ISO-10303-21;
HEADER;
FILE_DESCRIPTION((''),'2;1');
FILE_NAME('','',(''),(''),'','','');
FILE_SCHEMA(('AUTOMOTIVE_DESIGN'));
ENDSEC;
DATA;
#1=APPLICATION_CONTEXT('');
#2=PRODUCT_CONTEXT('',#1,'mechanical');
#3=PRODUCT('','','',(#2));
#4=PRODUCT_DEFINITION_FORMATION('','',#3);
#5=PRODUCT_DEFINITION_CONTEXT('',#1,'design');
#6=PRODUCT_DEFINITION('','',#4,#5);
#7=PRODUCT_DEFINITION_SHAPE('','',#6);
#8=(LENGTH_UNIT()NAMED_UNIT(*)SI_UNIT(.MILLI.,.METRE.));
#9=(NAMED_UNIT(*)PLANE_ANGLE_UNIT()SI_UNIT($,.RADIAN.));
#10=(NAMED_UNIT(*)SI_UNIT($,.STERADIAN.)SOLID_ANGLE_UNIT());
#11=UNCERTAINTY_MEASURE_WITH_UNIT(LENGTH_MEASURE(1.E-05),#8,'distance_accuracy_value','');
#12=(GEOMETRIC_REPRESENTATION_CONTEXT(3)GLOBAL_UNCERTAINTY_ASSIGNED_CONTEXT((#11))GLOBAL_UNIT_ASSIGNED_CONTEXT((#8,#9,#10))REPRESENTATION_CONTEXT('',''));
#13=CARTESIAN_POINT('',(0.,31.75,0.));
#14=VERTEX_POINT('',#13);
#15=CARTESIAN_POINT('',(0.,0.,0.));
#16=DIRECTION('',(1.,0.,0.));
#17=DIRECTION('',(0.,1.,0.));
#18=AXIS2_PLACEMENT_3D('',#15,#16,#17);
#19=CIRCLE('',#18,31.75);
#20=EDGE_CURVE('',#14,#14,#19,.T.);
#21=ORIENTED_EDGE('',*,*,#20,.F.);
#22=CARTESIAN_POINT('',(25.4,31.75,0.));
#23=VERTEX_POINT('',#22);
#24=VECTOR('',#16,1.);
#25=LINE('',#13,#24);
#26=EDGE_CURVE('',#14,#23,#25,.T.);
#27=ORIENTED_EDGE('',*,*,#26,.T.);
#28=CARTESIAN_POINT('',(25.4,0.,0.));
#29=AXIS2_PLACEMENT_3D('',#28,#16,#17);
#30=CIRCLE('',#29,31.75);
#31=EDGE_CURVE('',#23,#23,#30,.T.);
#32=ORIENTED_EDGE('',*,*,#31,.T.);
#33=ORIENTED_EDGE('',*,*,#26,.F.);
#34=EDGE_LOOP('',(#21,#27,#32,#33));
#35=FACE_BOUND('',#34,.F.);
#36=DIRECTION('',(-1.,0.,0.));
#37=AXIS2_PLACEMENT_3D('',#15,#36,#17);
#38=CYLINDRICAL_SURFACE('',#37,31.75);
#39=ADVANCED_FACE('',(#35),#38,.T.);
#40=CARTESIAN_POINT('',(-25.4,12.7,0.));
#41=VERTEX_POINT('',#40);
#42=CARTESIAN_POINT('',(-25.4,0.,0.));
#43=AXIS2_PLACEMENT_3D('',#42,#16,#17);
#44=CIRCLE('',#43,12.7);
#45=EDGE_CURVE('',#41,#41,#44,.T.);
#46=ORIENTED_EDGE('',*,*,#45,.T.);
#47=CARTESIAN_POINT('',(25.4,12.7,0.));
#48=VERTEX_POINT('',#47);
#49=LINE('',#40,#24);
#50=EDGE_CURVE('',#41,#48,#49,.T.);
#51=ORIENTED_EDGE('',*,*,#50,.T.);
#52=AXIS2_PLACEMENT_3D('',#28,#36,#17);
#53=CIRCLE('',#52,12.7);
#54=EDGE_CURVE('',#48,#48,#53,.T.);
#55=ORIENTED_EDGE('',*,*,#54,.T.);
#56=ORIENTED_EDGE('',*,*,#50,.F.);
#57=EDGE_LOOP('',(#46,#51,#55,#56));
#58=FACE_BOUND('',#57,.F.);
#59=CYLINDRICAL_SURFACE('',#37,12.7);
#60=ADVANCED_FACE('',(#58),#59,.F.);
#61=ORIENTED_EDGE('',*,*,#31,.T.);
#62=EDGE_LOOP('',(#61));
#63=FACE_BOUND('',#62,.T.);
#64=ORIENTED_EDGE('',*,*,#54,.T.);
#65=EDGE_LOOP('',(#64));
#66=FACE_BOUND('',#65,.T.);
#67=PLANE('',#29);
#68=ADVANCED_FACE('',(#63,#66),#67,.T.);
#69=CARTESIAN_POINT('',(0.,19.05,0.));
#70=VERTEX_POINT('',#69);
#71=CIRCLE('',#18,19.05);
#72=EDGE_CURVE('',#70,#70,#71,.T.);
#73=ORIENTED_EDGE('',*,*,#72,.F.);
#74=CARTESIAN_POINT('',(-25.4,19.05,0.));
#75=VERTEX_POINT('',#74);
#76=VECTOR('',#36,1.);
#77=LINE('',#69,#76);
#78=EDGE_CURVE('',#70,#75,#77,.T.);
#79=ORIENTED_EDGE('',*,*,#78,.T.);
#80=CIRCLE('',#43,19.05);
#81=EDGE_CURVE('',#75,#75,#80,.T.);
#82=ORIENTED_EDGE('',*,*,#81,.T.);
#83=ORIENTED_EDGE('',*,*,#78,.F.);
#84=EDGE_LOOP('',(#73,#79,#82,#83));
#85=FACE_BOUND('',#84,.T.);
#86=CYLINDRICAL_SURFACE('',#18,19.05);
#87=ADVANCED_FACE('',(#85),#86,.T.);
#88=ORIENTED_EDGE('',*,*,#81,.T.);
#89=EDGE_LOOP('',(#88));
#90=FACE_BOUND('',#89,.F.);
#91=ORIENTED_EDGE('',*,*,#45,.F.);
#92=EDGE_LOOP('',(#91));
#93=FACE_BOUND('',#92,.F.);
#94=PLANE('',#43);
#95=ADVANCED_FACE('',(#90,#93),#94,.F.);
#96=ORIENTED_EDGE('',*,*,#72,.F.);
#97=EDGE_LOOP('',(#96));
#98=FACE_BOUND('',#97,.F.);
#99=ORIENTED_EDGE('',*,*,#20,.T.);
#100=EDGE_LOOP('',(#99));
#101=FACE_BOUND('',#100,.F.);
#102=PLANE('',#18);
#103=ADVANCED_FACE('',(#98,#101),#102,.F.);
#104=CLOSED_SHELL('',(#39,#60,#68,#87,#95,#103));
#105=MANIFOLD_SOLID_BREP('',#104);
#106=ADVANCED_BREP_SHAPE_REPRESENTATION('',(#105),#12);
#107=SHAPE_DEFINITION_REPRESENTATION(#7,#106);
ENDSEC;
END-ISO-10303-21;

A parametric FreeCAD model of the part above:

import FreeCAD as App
import Part
import Sketcher
from FreeCAD import Vector
Q = App.Units.Quantity

doc = App.newDocument("Part")
body = doc.addObject("PartDesign::Body", "Body")

# Sketch on YZ plane
sketch1 = doc.addObject("Sketcher::SketchObject", "Sketch")
body.addObject(sketch1)
sketch1.AttachmentSupport = (doc.YZ_Plane, [""])
sketch1.MapMode = "FlatFace"
sketch1.addGeometry([
    Part.Circle(Vector(0, 0, 0), Vector(0, 0, 1), 19),
    Part.Circle(Vector(0, 0, 0), Vector(0, 0, 1), 13),
], False)
sketch1.addConstraint([
    Sketcher.Constraint("Coincident", 0, 3, -1, 1),
    Sketcher.Constraint("Coincident", 1, 3, -1, 1),
    Sketcher.Constraint("Diameter", 1, Q("1 in")),
    Sketcher.Constraint("Diameter", 0, Q("1.5 in")),
])
pad1 = doc.addObject("PartDesign::Pad", "Pad")
body.addObject(pad1)
pad1.Profile = sketch1
pad1.Length = Q("1 in")
pad1.Reversed = True

# Sketch on YZ plane
sketch2 = doc.addObject("Sketcher::SketchObject", "Sketch001")
body.addObject(sketch2)
sketch2.AttachmentSupport = (doc.YZ_Plane, [""])
sketch2.MapMode = "FlatFace"
sketch2.addGeometry(Part.Circle(Vector(0, 0, 0), Vector(0, 0, 1), 32), False)
sketch2.addConstraint([
    Sketcher.Constraint("Coincident", 0, 3, -1, 1),
    Sketcher.Constraint("Diameter", 0, Q("2.5 in")),
])
pad2 = doc.addObject("PartDesign::Pad", "Pad001")
body.addObject(pad2)
pad2.Profile = sketch2
pad2.Length = Q("1 in")

# Sketch on YZ plane
sketch3 = doc.addObject("Sketcher::SketchObject", "Sketch002")
body.addObject(sketch3)
sketch3.AttachmentSupport = (doc.YZ_Plane, [""])
sketch3.MapMode = "FlatFace"
sketch3.addGeometry(Part.Circle(Vector(0, 0, 0), Vector(0, 0, 1), 13), False)
sketch3.addConstraint([
    Sketcher.Constraint("Coincident", 0, 3, -1, 1),
    Sketcher.Constraint("Diameter", 0, Q("1 in")),
])
pocket1 = doc.addObject("PartDesign::Pocket", "Pocket")
body.addObject(pocket1)
pocket1.Profile = sketch3
pocket1.Length = Q("1 in")
pocket1.Reversed = True

doc.recompute()
